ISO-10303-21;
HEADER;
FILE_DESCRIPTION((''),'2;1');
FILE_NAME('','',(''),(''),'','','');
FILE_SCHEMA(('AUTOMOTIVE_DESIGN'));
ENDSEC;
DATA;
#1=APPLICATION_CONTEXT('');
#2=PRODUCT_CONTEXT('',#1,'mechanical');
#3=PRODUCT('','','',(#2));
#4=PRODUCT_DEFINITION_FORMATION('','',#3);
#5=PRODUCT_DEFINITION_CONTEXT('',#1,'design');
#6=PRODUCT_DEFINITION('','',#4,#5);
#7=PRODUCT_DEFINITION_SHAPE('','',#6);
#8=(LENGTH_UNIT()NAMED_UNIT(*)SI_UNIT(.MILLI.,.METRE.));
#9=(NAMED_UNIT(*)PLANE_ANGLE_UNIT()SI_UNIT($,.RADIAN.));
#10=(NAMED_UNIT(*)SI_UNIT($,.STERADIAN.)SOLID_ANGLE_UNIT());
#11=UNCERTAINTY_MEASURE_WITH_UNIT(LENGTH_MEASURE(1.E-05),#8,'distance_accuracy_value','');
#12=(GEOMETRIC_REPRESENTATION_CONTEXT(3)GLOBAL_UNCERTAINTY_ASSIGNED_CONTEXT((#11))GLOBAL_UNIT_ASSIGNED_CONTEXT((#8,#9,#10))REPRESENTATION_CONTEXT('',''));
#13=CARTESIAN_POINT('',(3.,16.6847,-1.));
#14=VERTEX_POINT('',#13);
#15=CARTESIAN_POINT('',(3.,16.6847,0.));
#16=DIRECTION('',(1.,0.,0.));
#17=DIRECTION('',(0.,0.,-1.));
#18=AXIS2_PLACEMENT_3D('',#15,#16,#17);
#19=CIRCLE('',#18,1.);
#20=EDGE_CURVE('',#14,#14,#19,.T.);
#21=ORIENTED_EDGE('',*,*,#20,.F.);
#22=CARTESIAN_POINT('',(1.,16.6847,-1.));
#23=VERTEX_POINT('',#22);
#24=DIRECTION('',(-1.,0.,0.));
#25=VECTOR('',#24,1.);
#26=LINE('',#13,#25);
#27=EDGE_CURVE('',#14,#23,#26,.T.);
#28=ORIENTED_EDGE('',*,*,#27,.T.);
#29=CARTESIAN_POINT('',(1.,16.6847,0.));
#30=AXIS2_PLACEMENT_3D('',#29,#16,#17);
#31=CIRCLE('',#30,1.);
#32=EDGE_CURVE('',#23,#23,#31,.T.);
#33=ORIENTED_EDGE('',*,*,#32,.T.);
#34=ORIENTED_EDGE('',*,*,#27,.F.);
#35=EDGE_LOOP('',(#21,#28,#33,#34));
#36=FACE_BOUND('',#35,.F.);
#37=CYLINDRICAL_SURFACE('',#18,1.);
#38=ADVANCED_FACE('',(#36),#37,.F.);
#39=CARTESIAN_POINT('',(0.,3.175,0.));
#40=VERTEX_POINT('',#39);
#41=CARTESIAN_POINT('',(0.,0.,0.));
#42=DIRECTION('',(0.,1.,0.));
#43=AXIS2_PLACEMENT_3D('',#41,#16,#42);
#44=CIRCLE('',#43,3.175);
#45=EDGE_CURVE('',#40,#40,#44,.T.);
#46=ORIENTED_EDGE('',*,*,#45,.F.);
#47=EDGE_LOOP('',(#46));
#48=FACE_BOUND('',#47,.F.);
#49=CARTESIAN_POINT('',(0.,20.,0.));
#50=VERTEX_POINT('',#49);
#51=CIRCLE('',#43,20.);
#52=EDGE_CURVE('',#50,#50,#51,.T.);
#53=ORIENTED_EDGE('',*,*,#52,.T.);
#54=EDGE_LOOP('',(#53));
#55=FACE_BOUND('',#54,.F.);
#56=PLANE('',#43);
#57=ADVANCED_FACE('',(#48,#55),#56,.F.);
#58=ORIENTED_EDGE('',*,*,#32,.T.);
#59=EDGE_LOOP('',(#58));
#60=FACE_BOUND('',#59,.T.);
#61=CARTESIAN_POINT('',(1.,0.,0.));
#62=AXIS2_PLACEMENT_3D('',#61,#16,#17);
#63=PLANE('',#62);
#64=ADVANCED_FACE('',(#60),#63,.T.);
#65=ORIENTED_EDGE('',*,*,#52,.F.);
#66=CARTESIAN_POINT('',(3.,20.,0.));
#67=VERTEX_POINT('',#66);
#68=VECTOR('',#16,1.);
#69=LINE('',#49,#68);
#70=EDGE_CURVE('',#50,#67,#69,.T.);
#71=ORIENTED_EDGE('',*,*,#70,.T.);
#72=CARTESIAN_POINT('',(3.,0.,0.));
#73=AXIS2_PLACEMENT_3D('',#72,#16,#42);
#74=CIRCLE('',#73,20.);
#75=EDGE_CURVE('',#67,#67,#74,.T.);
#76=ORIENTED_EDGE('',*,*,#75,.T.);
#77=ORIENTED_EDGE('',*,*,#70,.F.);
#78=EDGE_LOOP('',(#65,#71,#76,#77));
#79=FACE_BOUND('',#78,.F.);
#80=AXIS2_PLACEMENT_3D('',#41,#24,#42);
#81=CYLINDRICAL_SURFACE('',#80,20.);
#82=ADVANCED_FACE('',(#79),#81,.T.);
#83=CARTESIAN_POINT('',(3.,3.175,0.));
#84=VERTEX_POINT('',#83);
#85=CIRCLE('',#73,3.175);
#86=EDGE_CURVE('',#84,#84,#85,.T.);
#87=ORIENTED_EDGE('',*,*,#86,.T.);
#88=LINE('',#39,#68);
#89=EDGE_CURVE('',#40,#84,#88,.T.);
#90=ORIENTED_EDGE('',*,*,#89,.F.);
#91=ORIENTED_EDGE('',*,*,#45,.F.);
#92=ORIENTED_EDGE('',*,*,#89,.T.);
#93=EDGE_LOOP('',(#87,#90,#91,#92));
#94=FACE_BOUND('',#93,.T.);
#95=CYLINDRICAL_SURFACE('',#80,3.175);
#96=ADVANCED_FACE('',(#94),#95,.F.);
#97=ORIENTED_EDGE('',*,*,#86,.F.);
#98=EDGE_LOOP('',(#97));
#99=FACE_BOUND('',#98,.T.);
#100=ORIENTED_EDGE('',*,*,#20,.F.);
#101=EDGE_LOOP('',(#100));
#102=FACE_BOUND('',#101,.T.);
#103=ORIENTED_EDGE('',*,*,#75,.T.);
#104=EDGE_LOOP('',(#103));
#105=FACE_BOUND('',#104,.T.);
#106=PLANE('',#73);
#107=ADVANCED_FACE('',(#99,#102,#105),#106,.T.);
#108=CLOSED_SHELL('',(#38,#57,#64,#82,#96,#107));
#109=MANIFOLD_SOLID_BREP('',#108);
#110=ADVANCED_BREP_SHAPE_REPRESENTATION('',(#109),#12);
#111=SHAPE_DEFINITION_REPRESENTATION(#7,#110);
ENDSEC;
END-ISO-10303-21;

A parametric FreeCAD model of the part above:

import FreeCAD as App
import Part
import Sketcher
from FreeCAD import Vector
Q = App.Units.Quantity

doc = App.newDocument("Part")
body = doc.addObject("PartDesign::Body", "Body")

# Sketch on YZ plane
sketch1 = doc.addObject("Sketcher::SketchObject", "Sketch")
body.addObject(sketch1)
sketch1.AttachmentSupport = (doc.YZ_Plane, [""])
sketch1.MapMode = "FlatFace"
sketch1.addGeometry([
    Part.Circle(Vector(0, 0, 0), Vector(0, 0, 1), 20),
    Part.Circle(Vector(0, 0, 0), Vector(0, 0, 1), 3.2),
], False)
sketch1.addConstraint([
    Sketcher.Constraint("Coincident", 0, 3, -1, 1),
    Sketcher.Constraint("Coincident", 1, 3, -1, 1),
    Sketcher.Constraint("Diameter", 0, Q("40 mm")),
    Sketcher.Constraint("Diameter", 1, Q("6.35 mm")),
])
pad1 = doc.addObject("PartDesign::Pad", "Pad")
body.addObject(pad1)
pad1.Profile = sketch1
pad1.Length = 3

# Sketch on YZ plane
sketch2 = doc.addObject("Sketcher::SketchObject", "Sketch001")
body.addObject(sketch2)
sketch2.AttachmentSupport = (doc.YZ_Plane, [""])
sketch2.MapMode = "FlatFace"
sketch2.AttachmentOffset = App.Placement(Vector(0, 0, 3), App.Rotation())
sketch2.addGeometry(Part.Circle(Vector(16.7, 0, 0), Vector(0, 0, 1), 1), False)
sketch2.addConstraint([
    Sketcher.Constraint("PointOnObject", 0, 3, -1),
    Sketcher.Constraint("Diameter", 0, Q("2 mm")),
    Sketcher.Constraint("DistanceX", -1, 1, 0, 3, Q("16.6847 mm")),
])
pocket1 = doc.addObject("PartDesign::Pocket", "Pocket")
body.addObject(pocket1)
pocket1.Profile = sketch2
pocket1.Length = 2

doc.recompute()
